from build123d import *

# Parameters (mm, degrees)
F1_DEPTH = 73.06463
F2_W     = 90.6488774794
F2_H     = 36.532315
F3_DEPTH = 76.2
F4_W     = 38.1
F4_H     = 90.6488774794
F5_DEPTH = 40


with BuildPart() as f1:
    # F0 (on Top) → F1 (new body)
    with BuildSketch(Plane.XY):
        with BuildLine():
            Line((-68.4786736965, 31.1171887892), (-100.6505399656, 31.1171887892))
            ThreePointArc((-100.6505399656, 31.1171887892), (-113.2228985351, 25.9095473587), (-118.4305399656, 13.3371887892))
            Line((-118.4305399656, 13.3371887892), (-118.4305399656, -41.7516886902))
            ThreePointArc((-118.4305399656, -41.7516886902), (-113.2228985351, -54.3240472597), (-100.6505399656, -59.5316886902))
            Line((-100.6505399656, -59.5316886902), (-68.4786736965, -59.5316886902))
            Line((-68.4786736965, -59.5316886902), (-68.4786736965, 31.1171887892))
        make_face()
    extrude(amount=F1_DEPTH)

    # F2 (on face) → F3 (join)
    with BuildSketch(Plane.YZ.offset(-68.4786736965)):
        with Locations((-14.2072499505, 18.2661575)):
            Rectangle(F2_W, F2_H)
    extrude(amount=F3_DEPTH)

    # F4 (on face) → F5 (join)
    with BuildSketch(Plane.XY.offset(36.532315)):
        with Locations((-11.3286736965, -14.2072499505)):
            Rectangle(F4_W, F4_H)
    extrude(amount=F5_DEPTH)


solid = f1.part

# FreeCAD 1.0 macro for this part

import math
import FreeCAD as App
import Part
import Sketcher
Q = App.Units.Quantity

doc = App.newDocument("Part")
body = doc.addObject("PartDesign::Body", "Body")

sketch1 = body.newObject("Sketcher::SketchObject", "Sketch")
sketch1.AttachmentSupport = (doc.getObject("XY_Plane"), [""])
sketch1.MapMode = "FlatFace"
sketch1.addGeometry([
    Part.LineSegment(App.Vector(-68.478674, 31.117189, 0), App.Vector(-100.65054, 31.117189, 0)),
    Part.ArcOfCircle(Part.Circle(App.Vector(-100.65054, 13.337189, 0), App.Vector(0, 0, 1), 17.78), math.radians(90), math.radians(180)),
    Part.LineSegment(App.Vector(-118.43054, 13.337189, 0), App.Vector(-118.43054, -41.751689, 0)),
    Part.ArcOfCircle(Part.Circle(App.Vector(-100.65054, -41.751689, 0), App.Vector(0, 0, 1), 17.78), math.radians(180), math.radians(270)),
    Part.LineSegment(App.Vector(-100.65054, -59.531689, 0), App.Vector(-68.478674, -59.531689, 0)),
    Part.LineSegment(App.Vector(-68.478674, -59.531689, 0), App.Vector(-68.478674, 31.117189, 0)),
], False)
sketch1.addConstraint([
    Sketcher.Constraint("Tangent", 0, 2, 1, 1),
    Sketcher.Constraint("Tangent", 1, 2, 2, 1),
    Sketcher.Constraint("Tangent", 2, 2, 3, 1),
    Sketcher.Constraint("Tangent", 3, 2, 4, 1),
    Sketcher.Constraint("Coincident", 4, 2, 5, 1),
    Sketcher.Constraint("Coincident", 5, 2, 0, 1),
    Sketcher.Constraint("Horizontal", 0),
    Sketcher.Constraint("Vertical", 2),
    Sketcher.Constraint("Horizontal", 4),
    Sketcher.Constraint("Vertical", 5),
    Sketcher.Constraint("Equal", 1, 3),
    Sketcher.Constraint("Radius", 1, Q("0.7 in")),
    Sketcher.Constraint("DistanceX", 0, 2, 0, 1, Q("32.171866 mm")),
    Sketcher.Constraint("DistanceY", 2, 2, 2, 1, Q("55.088877 mm")),
    Sketcher.Constraint("DistanceX", 1, 3, -1, 1, Q("100.65054 mm")),
    Sketcher.Constraint("DistanceY", -1, 1, 1, 3, Q("13.337189 mm")),
])
pad1 = body.newObject("PartDesign::Pad", "Pad")
pad1.Profile = sketch1
pad1.Length = 73.06463

sketch2 = body.newObject("Sketcher::SketchObject", "Sketch001")
sketch2.AttachmentSupport = (doc.getObject("YZ_Plane"), [""])
sketch2.MapMode = "FlatFace"
sketch2.AttachmentOffset = App.Placement(App.Vector(0, 0, -68.478674), App.Rotation())
sketch2.addGeometry([
    Part.LineSegment(App.Vector(-59.531689, 36.532315, 0), App.Vector(-59.531689, 0, 0)),
    Part.LineSegment(App.Vector(-59.531689, 0, 0), App.Vector(31.117189, 0, 0)),
    Part.LineSegment(App.Vector(31.117189, 0, 0), App.Vector(31.117189, 36.532315, 0)),
    Part.LineSegment(App.Vector(31.117189, 36.532315, 0), App.Vector(-59.531689, 36.532315, 0)),
], False)
sketch2.addConstraint([
    Sketcher.Constraint("Coincident", 0, 2, 1, 1),
    Sketcher.Constraint("Coincident", 1, 2, 2, 1),
    Sketcher.Constraint("Coincident", 2, 2, 3, 1),
    Sketcher.Constraint("Coincident", 3, 2, 0, 1),
    Sketcher.Constraint("Vertical", 0),
    Sketcher.Constraint("Horizontal", 1),
    Sketcher.Constraint("Vertical", 2),
    Sketcher.Constraint("Horizontal", 3),
    Sketcher.Constraint("PointOnObject", 0, 2, -1),
    Sketcher.Constraint("DistanceX", 1, 1, 1, 2, Q("90.648877 mm")),
    Sketcher.Constraint("DistanceY", 0, 2, 0, 1, Q("36.532315 mm")),
    Sketcher.Constraint("DistanceX", 0, 2, -1, 1, Q("59.531689 mm")),
])
pad2 = body.newObject("PartDesign::Pad", "Pad001")
pad2.Profile = sketch2
pad2.Length = Q("3 in")

sketch3 = body.newObject("Sketcher::SketchObject", "Sketch002")
sketch3.AttachmentSupport = (doc.getObject("XY_Plane"), [""])
sketch3.MapMode = "FlatFace"
sketch3.AttachmentOffset = App.Placement(App.Vector(0, 0, 36.532315), App.Rotation())
sketch3.addGeometry([
    Part.LineSegment(App.Vector(-30.378674, 31.117189, 0), App.Vector(-30.378674, -59.531689, 0)),
    Part.LineSegment(App.Vector(-30.378674, -59.531689, 0), App.Vector(7.721326, -59.531689, 0)),
    Part.LineSegment(App.Vector(7.721326, -59.531689, 0), App.Vector(7.721326, 31.117189, 0)),
    Part.LineSegment(App.Vector(7.721326, 31.117189, 0), App.Vector(-30.378674, 31.117189, 0)),
], False)
sketch3.addConstraint([
    Sketcher.Constraint("Coincident", 0, 2, 1, 1),
    Sketcher.Constraint("Coincident", 1, 2, 2, 1),
    Sketcher.Constraint("Coincident", 2, 2, 3, 1),
    Sketcher.Constraint("Coincident", 3, 2, 0, 1),
    Sketcher.Constraint("Vertical", 0),
    Sketcher.Constraint("Horizontal", 1),
    Sketcher.Constraint("Vertical", 2),
    Sketcher.Constraint("Horizontal", 3),
    Sketcher.Constraint("DistanceX", 1, 1, 1, 2, Q("1.5 in")),
    Sketcher.Constraint("DistanceY", 0, 2, 0, 1, Q("90.648877 mm")),
    Sketcher.Constraint("DistanceY", 0, 2, -1, 1, Q("59.531689 mm")),
    Sketcher.Constraint("DistanceX", 0, 2, -1, 1, Q("30.378674 mm")),
])
pad3 = body.newObject("PartDesign::Pad", "Pad002")
pad3.Profile = sketch3
pad3.Length = 40

doc.recompute()
